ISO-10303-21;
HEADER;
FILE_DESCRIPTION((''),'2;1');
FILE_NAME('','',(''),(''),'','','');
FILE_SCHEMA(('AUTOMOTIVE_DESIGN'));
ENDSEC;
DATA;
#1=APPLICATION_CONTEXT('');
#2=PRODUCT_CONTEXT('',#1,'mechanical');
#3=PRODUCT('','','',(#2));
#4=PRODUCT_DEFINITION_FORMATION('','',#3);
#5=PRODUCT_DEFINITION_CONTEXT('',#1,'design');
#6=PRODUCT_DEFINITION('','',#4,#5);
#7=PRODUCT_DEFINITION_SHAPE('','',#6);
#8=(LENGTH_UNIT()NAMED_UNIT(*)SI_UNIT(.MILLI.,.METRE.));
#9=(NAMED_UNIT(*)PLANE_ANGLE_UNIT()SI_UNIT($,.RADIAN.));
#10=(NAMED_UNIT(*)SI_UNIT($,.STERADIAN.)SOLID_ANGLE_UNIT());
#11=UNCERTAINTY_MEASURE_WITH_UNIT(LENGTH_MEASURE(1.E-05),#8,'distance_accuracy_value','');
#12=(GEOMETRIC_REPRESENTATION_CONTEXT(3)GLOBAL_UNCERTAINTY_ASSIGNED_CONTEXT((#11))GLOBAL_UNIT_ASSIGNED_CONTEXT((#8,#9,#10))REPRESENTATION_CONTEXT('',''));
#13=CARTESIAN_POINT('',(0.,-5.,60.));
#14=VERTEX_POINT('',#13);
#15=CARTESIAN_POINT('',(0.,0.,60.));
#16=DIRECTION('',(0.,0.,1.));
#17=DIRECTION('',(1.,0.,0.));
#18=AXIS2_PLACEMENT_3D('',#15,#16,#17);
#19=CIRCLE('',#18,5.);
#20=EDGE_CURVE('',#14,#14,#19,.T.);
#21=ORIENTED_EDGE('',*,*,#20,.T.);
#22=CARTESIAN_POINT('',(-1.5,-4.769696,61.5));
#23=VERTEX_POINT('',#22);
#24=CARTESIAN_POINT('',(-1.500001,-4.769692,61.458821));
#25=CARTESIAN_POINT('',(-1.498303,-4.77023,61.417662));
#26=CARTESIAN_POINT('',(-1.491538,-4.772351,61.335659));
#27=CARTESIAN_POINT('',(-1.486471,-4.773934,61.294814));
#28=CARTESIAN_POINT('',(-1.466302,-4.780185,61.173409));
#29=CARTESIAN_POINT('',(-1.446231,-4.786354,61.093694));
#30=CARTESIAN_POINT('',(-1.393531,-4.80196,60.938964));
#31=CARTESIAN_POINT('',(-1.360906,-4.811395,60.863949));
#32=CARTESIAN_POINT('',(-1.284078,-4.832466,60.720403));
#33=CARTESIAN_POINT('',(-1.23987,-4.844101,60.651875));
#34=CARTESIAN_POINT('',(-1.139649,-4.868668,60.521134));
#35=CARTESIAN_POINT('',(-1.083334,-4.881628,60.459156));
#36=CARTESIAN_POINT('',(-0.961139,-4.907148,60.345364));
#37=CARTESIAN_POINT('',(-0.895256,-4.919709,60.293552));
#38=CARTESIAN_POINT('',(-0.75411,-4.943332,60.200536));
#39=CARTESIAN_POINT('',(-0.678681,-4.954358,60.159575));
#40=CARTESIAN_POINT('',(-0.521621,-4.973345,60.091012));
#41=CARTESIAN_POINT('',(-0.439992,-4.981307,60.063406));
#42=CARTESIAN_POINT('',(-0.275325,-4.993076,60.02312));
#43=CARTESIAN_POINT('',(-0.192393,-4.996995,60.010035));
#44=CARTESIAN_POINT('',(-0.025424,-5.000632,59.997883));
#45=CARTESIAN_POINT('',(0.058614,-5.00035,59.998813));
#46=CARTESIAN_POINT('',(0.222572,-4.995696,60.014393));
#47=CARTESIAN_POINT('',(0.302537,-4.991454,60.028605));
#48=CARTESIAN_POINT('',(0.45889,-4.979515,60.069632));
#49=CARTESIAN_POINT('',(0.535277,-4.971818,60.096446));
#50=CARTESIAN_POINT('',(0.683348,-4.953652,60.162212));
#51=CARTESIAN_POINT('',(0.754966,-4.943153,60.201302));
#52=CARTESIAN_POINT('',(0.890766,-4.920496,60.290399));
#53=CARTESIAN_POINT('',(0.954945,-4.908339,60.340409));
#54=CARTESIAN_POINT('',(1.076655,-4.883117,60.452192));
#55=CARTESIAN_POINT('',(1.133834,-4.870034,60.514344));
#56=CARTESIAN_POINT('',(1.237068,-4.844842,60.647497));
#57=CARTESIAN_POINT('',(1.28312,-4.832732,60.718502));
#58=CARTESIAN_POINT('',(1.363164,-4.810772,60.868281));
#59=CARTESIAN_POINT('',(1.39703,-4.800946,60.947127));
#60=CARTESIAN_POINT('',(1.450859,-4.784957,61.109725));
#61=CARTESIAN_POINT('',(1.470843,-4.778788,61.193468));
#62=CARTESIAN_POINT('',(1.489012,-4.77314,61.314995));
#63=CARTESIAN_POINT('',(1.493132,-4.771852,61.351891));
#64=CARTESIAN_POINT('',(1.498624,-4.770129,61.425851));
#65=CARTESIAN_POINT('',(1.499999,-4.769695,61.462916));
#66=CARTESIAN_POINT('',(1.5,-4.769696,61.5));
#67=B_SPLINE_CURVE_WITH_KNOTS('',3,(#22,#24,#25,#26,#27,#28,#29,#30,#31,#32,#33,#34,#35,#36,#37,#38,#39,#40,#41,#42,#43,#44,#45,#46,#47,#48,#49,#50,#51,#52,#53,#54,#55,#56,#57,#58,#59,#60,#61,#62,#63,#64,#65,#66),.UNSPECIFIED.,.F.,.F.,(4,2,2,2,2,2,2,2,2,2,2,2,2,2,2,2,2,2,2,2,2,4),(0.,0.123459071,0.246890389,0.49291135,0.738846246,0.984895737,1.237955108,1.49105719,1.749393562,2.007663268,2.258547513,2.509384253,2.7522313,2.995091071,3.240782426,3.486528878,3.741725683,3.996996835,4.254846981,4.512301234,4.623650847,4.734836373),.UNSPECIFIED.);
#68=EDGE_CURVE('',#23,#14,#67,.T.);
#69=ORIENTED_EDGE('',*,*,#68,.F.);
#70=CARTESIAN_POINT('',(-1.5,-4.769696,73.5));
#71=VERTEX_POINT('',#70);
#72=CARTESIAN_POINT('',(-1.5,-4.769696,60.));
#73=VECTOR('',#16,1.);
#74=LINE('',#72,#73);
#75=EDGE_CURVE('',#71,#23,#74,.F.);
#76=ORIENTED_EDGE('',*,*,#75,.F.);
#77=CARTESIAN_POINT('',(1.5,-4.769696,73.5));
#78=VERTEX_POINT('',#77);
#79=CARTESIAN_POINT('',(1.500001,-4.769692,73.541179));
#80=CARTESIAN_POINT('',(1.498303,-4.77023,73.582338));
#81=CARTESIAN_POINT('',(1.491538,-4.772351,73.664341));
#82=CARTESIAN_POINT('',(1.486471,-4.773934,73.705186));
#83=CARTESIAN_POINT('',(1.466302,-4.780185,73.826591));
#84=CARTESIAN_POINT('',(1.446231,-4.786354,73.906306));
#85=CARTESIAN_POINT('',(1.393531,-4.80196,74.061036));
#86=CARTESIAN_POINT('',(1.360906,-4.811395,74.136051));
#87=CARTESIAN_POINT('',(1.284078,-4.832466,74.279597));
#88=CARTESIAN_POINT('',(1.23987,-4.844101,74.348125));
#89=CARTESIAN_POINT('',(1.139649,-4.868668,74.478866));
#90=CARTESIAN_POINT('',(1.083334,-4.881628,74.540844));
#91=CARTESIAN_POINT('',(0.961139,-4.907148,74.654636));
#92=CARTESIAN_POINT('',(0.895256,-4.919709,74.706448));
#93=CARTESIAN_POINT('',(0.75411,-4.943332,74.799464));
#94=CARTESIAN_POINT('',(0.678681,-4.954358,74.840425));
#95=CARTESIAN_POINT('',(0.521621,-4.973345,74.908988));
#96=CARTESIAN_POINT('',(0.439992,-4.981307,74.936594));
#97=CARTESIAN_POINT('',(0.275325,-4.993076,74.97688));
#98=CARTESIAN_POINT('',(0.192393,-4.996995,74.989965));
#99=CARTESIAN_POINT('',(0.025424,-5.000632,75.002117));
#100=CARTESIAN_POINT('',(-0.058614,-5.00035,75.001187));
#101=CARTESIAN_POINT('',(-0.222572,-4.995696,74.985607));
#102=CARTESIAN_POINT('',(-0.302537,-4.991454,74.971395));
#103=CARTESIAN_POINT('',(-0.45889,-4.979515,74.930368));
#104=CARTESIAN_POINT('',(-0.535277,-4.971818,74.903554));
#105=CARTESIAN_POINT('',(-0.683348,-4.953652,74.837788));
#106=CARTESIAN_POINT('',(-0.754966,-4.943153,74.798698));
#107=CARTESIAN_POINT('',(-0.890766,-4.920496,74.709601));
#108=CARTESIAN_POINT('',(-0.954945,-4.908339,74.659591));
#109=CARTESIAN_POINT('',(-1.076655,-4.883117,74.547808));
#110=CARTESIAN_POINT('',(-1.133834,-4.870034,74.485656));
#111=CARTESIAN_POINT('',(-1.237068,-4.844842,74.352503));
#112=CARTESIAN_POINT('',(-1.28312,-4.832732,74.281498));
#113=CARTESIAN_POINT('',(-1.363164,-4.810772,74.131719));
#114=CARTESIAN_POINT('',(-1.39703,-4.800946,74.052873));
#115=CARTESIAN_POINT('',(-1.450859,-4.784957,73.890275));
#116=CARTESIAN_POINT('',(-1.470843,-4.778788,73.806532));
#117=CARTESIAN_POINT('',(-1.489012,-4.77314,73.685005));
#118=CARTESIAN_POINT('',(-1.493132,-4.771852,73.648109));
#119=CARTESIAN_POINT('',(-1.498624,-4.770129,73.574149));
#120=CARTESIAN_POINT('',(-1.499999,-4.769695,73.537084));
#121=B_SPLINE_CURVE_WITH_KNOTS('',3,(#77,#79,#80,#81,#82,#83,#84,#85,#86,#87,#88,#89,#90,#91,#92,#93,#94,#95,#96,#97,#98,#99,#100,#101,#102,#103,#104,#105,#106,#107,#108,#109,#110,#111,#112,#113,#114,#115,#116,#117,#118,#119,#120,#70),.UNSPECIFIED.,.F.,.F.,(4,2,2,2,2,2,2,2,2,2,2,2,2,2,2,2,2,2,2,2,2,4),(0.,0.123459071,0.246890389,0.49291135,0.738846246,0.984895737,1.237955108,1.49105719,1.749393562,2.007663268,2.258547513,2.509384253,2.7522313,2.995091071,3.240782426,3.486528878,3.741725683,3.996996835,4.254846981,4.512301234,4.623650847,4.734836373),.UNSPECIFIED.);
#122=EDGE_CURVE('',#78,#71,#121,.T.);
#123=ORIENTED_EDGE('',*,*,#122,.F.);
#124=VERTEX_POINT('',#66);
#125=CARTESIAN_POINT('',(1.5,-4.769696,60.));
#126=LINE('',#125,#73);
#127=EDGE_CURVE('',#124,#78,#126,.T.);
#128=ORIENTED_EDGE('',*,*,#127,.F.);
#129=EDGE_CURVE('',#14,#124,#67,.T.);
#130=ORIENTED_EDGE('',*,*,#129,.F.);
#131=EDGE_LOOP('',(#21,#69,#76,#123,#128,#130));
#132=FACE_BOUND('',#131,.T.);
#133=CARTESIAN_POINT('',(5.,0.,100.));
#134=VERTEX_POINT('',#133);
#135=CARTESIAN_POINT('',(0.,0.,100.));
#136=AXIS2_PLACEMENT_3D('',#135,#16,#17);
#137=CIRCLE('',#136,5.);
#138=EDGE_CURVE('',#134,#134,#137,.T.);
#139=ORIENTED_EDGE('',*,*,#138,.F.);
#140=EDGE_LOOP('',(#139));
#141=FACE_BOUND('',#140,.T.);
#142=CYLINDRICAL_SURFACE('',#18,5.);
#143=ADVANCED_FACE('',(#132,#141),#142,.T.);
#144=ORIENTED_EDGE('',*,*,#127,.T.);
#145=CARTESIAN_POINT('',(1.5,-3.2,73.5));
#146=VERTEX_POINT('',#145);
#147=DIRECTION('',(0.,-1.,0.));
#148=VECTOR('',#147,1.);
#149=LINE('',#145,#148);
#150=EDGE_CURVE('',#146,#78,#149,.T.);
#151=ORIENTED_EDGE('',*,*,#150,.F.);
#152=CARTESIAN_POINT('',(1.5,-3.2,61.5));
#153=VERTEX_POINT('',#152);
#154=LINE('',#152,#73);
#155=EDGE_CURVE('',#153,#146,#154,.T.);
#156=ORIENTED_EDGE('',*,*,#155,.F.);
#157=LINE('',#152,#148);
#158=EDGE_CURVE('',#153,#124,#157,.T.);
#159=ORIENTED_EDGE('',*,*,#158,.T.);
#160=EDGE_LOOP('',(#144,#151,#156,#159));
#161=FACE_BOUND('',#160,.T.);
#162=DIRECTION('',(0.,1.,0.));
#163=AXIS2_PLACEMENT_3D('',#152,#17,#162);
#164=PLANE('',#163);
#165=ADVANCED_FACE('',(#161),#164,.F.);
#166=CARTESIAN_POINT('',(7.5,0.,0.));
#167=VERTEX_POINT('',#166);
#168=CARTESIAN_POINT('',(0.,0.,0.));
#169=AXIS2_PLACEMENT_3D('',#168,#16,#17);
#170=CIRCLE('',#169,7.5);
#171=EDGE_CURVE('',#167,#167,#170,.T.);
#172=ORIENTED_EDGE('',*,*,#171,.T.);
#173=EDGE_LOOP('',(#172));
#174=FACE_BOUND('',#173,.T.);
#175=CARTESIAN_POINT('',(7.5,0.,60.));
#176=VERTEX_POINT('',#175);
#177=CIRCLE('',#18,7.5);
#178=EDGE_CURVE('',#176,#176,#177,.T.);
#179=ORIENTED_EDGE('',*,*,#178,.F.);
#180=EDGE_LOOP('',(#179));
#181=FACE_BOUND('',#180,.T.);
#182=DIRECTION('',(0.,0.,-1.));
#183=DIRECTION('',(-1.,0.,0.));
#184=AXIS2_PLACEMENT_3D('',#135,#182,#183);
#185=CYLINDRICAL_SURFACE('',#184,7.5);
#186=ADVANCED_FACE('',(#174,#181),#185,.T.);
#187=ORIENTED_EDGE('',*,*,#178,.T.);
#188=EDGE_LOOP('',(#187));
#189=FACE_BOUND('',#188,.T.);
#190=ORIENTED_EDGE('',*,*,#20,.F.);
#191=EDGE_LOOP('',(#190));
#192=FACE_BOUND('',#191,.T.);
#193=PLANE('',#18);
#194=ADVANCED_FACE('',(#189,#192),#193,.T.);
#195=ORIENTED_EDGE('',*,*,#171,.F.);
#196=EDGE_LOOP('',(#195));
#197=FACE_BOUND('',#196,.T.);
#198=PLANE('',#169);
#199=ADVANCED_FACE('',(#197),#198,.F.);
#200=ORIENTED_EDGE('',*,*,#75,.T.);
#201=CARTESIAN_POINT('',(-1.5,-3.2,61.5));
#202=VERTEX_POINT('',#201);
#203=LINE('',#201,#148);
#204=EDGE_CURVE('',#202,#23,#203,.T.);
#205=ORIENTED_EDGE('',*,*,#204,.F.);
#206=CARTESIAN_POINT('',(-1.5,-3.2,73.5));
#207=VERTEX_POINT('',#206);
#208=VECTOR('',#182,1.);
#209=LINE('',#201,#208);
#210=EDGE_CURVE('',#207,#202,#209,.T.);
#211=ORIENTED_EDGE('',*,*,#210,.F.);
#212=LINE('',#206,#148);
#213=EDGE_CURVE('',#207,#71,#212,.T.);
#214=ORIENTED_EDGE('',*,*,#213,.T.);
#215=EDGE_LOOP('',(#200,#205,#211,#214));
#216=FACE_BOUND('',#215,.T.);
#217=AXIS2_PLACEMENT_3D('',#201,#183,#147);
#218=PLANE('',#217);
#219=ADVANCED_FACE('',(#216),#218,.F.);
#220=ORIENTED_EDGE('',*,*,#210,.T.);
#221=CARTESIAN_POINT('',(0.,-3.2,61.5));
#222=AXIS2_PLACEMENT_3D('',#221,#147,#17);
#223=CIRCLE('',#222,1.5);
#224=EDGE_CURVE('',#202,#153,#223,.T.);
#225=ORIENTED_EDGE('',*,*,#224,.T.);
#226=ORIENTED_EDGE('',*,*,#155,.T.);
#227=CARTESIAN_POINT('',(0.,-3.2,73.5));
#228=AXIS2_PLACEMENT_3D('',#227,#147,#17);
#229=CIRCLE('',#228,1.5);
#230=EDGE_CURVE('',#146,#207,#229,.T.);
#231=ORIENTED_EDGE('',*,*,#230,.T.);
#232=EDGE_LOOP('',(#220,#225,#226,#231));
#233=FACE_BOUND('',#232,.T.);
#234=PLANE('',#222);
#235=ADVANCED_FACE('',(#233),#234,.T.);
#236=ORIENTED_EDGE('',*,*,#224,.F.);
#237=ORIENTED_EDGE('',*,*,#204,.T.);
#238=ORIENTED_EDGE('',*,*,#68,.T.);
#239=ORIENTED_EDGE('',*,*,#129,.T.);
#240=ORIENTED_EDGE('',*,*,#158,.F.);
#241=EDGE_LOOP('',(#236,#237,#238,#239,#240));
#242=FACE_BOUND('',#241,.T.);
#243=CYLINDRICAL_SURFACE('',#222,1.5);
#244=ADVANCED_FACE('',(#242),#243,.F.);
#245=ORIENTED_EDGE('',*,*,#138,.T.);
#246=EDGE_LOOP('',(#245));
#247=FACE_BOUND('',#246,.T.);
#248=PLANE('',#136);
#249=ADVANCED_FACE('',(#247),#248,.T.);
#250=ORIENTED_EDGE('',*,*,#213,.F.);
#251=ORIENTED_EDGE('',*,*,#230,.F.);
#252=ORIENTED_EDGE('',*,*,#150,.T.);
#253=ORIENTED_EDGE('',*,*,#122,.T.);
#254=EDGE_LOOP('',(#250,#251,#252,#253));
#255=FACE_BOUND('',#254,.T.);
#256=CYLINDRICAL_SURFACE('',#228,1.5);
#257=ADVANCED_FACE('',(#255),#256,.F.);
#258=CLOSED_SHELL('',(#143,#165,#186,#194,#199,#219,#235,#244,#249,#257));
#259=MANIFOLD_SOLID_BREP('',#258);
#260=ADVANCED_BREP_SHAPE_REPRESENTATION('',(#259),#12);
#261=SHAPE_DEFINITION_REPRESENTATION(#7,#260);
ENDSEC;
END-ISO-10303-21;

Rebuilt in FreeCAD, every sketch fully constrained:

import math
import FreeCAD as App
import Part
import Sketcher


def add_polygon(sketch, points):
    """Adds a closed chain of lines whose ends are joined by coincident constraints."""
    first, n = sketch.GeometryCount, len(points)
    for a, b in zip(points, points[1:] + points[:1]):
        sketch.addGeometry(Part.LineSegment(App.Vector(*a, 0), App.Vector(*b, 0)), False)
    for i in range(n):
        sketch.addConstraint(Sketcher.Constraint("Coincident", first + i, 2, first + (i + 1) % n, 1))

doc = App.newDocument("Part")
body = doc.addObject("PartDesign::Body", "Body")

# Sketch on XY plane
sketch1 = body.newObject("Sketcher::SketchObject", "Sketch")
sketch1.AttachmentSupport = (doc.getObject("XY_Plane"), [""])
sketch1.MapMode = "FlatFace"
sketch1.addGeometry(Part.Circle(App.Vector(0, 0, 0), App.Vector(0, 0, 1), 8), False)
sketch1.addConstraint(Sketcher.Constraint("Coincident", 0, 3, -1, 1))
sketch1.addConstraint(Sketcher.Constraint("Diameter", 0, 15.0))
pad1 = body.newObject("PartDesign::Pad", "Pad")
pad1.Profile = sketch1
pad1.Length = 100

# Sketch on XY plane
sketch2 = body.newObject("Sketcher::SketchObject", "Sketch001")
sketch2.AttachmentSupport = (doc.getObject("XY_Plane"), [""])
sketch2.MapMode = "FlatFace"
sketch2.AttachmentOffset = App.Placement(App.Vector(0, 0, 100), App.Rotation())
add_polygon(sketch2, [(-19, 19), (-19, -19), (19, -19), (19, 19)])  # lines 0-3
sketch2.addGeometry(Part.Circle(App.Vector(0, 0, 0), App.Vector(0, 0, 1), 5), False)  # 4
sketch2.addConstraint(Sketcher.Constraint("Vertical", 0))
sketch2.addConstraint(Sketcher.Constraint("Horizontal", 1))
sketch2.addConstraint(Sketcher.Constraint("Vertical", 2))
sketch2.addConstraint(Sketcher.Constraint("Horizontal", 3))
sketch2.addConstraint(Sketcher.Constraint("Coincident", 4, 3, -1, 1))
sketch2.addConstraint(Sketcher.Constraint("Symmetric", 0, 2, 2, 2, -1, 1))
sketch2.addConstraint(Sketcher.Constraint("Equal", 3, 0))
sketch2.addConstraint(Sketcher.Constraint("Diameter", 4, 10.0))
sketch2.addConstraint(Sketcher.Constraint("DistanceX", 1, 1, 1, 2, 37.446))
pocket1 = body.newObject("PartDesign::Pocket", "Pocket")
pocket1.Profile = sketch2
pocket1.Length = 40

# Sketch on XZ plane
sketch3 = body.newObject("Sketcher::SketchObject", "Sketch002")
sketch3.AttachmentSupport = (doc.getObject("XZ_Plane"), [""])
sketch3.MapMode = "FlatFace"
sketch3.AttachmentOffset = App.Placement(App.Vector(0, 0, 5), App.Rotation())
sketch3.addGeometry(Part.LineSegment(App.Vector(-1.5, 73.5, 0), App.Vector(-1.5, 61.5, 0)), False)
sketch3.addGeometry(Part.ArcOfCircle(Part.Circle(App.Vector(0, 61.5, 0), App.Vector(0, 0, 1), 1.5), math.radians(180), math.radians(360)), False)
sketch3.addGeometry(Part.LineSegment(App.Vector(1.5, 61.5, 0), App.Vector(1.5, 73.5, 0)), False)
sketch3.addGeometry(Part.ArcOfCircle(Part.Circle(App.Vector(0, 73.5, 0), App.Vector(0, 0, 1), 1.5), math.radians(0), math.radians(180)), False)
sketch3.addConstraint(Sketcher.Constraint("Tangent", 0, 2, 1, 1))
sketch3.addConstraint(Sketcher.Constraint("Tangent", 1, 2, 2, 1))
sketch3.addConstraint(Sketcher.Constraint("Tangent", 2, 2, 3, 1))
sketch3.addConstraint(Sketcher.Constraint("Tangent", 3, 2, 0, 1))
sketch3.addConstraint(Sketcher.Constraint("Vertical", 0))
sketch3.addConstraint(Sketcher.Constraint("Vertical", 2))
sketch3.addConstraint(Sketcher.Constraint("PointOnObject", 1, 3, -2))
sketch3.addConstraint(Sketcher.Constraint("Radius", 1, 1.5))
sketch3.addConstraint(Sketcher.Constraint("DistanceY", 0, 2, 0, 1, 12.0))
sketch3.addConstraint(Sketcher.Constraint("DistanceY", -1, 1, 1, 3, 61.5))
pocket2 = body.newObject("PartDesign::Pocket", "Pocket001")
pocket2.Profile = sketch3
pocket2.Length = 1.8

doc.recompute()
